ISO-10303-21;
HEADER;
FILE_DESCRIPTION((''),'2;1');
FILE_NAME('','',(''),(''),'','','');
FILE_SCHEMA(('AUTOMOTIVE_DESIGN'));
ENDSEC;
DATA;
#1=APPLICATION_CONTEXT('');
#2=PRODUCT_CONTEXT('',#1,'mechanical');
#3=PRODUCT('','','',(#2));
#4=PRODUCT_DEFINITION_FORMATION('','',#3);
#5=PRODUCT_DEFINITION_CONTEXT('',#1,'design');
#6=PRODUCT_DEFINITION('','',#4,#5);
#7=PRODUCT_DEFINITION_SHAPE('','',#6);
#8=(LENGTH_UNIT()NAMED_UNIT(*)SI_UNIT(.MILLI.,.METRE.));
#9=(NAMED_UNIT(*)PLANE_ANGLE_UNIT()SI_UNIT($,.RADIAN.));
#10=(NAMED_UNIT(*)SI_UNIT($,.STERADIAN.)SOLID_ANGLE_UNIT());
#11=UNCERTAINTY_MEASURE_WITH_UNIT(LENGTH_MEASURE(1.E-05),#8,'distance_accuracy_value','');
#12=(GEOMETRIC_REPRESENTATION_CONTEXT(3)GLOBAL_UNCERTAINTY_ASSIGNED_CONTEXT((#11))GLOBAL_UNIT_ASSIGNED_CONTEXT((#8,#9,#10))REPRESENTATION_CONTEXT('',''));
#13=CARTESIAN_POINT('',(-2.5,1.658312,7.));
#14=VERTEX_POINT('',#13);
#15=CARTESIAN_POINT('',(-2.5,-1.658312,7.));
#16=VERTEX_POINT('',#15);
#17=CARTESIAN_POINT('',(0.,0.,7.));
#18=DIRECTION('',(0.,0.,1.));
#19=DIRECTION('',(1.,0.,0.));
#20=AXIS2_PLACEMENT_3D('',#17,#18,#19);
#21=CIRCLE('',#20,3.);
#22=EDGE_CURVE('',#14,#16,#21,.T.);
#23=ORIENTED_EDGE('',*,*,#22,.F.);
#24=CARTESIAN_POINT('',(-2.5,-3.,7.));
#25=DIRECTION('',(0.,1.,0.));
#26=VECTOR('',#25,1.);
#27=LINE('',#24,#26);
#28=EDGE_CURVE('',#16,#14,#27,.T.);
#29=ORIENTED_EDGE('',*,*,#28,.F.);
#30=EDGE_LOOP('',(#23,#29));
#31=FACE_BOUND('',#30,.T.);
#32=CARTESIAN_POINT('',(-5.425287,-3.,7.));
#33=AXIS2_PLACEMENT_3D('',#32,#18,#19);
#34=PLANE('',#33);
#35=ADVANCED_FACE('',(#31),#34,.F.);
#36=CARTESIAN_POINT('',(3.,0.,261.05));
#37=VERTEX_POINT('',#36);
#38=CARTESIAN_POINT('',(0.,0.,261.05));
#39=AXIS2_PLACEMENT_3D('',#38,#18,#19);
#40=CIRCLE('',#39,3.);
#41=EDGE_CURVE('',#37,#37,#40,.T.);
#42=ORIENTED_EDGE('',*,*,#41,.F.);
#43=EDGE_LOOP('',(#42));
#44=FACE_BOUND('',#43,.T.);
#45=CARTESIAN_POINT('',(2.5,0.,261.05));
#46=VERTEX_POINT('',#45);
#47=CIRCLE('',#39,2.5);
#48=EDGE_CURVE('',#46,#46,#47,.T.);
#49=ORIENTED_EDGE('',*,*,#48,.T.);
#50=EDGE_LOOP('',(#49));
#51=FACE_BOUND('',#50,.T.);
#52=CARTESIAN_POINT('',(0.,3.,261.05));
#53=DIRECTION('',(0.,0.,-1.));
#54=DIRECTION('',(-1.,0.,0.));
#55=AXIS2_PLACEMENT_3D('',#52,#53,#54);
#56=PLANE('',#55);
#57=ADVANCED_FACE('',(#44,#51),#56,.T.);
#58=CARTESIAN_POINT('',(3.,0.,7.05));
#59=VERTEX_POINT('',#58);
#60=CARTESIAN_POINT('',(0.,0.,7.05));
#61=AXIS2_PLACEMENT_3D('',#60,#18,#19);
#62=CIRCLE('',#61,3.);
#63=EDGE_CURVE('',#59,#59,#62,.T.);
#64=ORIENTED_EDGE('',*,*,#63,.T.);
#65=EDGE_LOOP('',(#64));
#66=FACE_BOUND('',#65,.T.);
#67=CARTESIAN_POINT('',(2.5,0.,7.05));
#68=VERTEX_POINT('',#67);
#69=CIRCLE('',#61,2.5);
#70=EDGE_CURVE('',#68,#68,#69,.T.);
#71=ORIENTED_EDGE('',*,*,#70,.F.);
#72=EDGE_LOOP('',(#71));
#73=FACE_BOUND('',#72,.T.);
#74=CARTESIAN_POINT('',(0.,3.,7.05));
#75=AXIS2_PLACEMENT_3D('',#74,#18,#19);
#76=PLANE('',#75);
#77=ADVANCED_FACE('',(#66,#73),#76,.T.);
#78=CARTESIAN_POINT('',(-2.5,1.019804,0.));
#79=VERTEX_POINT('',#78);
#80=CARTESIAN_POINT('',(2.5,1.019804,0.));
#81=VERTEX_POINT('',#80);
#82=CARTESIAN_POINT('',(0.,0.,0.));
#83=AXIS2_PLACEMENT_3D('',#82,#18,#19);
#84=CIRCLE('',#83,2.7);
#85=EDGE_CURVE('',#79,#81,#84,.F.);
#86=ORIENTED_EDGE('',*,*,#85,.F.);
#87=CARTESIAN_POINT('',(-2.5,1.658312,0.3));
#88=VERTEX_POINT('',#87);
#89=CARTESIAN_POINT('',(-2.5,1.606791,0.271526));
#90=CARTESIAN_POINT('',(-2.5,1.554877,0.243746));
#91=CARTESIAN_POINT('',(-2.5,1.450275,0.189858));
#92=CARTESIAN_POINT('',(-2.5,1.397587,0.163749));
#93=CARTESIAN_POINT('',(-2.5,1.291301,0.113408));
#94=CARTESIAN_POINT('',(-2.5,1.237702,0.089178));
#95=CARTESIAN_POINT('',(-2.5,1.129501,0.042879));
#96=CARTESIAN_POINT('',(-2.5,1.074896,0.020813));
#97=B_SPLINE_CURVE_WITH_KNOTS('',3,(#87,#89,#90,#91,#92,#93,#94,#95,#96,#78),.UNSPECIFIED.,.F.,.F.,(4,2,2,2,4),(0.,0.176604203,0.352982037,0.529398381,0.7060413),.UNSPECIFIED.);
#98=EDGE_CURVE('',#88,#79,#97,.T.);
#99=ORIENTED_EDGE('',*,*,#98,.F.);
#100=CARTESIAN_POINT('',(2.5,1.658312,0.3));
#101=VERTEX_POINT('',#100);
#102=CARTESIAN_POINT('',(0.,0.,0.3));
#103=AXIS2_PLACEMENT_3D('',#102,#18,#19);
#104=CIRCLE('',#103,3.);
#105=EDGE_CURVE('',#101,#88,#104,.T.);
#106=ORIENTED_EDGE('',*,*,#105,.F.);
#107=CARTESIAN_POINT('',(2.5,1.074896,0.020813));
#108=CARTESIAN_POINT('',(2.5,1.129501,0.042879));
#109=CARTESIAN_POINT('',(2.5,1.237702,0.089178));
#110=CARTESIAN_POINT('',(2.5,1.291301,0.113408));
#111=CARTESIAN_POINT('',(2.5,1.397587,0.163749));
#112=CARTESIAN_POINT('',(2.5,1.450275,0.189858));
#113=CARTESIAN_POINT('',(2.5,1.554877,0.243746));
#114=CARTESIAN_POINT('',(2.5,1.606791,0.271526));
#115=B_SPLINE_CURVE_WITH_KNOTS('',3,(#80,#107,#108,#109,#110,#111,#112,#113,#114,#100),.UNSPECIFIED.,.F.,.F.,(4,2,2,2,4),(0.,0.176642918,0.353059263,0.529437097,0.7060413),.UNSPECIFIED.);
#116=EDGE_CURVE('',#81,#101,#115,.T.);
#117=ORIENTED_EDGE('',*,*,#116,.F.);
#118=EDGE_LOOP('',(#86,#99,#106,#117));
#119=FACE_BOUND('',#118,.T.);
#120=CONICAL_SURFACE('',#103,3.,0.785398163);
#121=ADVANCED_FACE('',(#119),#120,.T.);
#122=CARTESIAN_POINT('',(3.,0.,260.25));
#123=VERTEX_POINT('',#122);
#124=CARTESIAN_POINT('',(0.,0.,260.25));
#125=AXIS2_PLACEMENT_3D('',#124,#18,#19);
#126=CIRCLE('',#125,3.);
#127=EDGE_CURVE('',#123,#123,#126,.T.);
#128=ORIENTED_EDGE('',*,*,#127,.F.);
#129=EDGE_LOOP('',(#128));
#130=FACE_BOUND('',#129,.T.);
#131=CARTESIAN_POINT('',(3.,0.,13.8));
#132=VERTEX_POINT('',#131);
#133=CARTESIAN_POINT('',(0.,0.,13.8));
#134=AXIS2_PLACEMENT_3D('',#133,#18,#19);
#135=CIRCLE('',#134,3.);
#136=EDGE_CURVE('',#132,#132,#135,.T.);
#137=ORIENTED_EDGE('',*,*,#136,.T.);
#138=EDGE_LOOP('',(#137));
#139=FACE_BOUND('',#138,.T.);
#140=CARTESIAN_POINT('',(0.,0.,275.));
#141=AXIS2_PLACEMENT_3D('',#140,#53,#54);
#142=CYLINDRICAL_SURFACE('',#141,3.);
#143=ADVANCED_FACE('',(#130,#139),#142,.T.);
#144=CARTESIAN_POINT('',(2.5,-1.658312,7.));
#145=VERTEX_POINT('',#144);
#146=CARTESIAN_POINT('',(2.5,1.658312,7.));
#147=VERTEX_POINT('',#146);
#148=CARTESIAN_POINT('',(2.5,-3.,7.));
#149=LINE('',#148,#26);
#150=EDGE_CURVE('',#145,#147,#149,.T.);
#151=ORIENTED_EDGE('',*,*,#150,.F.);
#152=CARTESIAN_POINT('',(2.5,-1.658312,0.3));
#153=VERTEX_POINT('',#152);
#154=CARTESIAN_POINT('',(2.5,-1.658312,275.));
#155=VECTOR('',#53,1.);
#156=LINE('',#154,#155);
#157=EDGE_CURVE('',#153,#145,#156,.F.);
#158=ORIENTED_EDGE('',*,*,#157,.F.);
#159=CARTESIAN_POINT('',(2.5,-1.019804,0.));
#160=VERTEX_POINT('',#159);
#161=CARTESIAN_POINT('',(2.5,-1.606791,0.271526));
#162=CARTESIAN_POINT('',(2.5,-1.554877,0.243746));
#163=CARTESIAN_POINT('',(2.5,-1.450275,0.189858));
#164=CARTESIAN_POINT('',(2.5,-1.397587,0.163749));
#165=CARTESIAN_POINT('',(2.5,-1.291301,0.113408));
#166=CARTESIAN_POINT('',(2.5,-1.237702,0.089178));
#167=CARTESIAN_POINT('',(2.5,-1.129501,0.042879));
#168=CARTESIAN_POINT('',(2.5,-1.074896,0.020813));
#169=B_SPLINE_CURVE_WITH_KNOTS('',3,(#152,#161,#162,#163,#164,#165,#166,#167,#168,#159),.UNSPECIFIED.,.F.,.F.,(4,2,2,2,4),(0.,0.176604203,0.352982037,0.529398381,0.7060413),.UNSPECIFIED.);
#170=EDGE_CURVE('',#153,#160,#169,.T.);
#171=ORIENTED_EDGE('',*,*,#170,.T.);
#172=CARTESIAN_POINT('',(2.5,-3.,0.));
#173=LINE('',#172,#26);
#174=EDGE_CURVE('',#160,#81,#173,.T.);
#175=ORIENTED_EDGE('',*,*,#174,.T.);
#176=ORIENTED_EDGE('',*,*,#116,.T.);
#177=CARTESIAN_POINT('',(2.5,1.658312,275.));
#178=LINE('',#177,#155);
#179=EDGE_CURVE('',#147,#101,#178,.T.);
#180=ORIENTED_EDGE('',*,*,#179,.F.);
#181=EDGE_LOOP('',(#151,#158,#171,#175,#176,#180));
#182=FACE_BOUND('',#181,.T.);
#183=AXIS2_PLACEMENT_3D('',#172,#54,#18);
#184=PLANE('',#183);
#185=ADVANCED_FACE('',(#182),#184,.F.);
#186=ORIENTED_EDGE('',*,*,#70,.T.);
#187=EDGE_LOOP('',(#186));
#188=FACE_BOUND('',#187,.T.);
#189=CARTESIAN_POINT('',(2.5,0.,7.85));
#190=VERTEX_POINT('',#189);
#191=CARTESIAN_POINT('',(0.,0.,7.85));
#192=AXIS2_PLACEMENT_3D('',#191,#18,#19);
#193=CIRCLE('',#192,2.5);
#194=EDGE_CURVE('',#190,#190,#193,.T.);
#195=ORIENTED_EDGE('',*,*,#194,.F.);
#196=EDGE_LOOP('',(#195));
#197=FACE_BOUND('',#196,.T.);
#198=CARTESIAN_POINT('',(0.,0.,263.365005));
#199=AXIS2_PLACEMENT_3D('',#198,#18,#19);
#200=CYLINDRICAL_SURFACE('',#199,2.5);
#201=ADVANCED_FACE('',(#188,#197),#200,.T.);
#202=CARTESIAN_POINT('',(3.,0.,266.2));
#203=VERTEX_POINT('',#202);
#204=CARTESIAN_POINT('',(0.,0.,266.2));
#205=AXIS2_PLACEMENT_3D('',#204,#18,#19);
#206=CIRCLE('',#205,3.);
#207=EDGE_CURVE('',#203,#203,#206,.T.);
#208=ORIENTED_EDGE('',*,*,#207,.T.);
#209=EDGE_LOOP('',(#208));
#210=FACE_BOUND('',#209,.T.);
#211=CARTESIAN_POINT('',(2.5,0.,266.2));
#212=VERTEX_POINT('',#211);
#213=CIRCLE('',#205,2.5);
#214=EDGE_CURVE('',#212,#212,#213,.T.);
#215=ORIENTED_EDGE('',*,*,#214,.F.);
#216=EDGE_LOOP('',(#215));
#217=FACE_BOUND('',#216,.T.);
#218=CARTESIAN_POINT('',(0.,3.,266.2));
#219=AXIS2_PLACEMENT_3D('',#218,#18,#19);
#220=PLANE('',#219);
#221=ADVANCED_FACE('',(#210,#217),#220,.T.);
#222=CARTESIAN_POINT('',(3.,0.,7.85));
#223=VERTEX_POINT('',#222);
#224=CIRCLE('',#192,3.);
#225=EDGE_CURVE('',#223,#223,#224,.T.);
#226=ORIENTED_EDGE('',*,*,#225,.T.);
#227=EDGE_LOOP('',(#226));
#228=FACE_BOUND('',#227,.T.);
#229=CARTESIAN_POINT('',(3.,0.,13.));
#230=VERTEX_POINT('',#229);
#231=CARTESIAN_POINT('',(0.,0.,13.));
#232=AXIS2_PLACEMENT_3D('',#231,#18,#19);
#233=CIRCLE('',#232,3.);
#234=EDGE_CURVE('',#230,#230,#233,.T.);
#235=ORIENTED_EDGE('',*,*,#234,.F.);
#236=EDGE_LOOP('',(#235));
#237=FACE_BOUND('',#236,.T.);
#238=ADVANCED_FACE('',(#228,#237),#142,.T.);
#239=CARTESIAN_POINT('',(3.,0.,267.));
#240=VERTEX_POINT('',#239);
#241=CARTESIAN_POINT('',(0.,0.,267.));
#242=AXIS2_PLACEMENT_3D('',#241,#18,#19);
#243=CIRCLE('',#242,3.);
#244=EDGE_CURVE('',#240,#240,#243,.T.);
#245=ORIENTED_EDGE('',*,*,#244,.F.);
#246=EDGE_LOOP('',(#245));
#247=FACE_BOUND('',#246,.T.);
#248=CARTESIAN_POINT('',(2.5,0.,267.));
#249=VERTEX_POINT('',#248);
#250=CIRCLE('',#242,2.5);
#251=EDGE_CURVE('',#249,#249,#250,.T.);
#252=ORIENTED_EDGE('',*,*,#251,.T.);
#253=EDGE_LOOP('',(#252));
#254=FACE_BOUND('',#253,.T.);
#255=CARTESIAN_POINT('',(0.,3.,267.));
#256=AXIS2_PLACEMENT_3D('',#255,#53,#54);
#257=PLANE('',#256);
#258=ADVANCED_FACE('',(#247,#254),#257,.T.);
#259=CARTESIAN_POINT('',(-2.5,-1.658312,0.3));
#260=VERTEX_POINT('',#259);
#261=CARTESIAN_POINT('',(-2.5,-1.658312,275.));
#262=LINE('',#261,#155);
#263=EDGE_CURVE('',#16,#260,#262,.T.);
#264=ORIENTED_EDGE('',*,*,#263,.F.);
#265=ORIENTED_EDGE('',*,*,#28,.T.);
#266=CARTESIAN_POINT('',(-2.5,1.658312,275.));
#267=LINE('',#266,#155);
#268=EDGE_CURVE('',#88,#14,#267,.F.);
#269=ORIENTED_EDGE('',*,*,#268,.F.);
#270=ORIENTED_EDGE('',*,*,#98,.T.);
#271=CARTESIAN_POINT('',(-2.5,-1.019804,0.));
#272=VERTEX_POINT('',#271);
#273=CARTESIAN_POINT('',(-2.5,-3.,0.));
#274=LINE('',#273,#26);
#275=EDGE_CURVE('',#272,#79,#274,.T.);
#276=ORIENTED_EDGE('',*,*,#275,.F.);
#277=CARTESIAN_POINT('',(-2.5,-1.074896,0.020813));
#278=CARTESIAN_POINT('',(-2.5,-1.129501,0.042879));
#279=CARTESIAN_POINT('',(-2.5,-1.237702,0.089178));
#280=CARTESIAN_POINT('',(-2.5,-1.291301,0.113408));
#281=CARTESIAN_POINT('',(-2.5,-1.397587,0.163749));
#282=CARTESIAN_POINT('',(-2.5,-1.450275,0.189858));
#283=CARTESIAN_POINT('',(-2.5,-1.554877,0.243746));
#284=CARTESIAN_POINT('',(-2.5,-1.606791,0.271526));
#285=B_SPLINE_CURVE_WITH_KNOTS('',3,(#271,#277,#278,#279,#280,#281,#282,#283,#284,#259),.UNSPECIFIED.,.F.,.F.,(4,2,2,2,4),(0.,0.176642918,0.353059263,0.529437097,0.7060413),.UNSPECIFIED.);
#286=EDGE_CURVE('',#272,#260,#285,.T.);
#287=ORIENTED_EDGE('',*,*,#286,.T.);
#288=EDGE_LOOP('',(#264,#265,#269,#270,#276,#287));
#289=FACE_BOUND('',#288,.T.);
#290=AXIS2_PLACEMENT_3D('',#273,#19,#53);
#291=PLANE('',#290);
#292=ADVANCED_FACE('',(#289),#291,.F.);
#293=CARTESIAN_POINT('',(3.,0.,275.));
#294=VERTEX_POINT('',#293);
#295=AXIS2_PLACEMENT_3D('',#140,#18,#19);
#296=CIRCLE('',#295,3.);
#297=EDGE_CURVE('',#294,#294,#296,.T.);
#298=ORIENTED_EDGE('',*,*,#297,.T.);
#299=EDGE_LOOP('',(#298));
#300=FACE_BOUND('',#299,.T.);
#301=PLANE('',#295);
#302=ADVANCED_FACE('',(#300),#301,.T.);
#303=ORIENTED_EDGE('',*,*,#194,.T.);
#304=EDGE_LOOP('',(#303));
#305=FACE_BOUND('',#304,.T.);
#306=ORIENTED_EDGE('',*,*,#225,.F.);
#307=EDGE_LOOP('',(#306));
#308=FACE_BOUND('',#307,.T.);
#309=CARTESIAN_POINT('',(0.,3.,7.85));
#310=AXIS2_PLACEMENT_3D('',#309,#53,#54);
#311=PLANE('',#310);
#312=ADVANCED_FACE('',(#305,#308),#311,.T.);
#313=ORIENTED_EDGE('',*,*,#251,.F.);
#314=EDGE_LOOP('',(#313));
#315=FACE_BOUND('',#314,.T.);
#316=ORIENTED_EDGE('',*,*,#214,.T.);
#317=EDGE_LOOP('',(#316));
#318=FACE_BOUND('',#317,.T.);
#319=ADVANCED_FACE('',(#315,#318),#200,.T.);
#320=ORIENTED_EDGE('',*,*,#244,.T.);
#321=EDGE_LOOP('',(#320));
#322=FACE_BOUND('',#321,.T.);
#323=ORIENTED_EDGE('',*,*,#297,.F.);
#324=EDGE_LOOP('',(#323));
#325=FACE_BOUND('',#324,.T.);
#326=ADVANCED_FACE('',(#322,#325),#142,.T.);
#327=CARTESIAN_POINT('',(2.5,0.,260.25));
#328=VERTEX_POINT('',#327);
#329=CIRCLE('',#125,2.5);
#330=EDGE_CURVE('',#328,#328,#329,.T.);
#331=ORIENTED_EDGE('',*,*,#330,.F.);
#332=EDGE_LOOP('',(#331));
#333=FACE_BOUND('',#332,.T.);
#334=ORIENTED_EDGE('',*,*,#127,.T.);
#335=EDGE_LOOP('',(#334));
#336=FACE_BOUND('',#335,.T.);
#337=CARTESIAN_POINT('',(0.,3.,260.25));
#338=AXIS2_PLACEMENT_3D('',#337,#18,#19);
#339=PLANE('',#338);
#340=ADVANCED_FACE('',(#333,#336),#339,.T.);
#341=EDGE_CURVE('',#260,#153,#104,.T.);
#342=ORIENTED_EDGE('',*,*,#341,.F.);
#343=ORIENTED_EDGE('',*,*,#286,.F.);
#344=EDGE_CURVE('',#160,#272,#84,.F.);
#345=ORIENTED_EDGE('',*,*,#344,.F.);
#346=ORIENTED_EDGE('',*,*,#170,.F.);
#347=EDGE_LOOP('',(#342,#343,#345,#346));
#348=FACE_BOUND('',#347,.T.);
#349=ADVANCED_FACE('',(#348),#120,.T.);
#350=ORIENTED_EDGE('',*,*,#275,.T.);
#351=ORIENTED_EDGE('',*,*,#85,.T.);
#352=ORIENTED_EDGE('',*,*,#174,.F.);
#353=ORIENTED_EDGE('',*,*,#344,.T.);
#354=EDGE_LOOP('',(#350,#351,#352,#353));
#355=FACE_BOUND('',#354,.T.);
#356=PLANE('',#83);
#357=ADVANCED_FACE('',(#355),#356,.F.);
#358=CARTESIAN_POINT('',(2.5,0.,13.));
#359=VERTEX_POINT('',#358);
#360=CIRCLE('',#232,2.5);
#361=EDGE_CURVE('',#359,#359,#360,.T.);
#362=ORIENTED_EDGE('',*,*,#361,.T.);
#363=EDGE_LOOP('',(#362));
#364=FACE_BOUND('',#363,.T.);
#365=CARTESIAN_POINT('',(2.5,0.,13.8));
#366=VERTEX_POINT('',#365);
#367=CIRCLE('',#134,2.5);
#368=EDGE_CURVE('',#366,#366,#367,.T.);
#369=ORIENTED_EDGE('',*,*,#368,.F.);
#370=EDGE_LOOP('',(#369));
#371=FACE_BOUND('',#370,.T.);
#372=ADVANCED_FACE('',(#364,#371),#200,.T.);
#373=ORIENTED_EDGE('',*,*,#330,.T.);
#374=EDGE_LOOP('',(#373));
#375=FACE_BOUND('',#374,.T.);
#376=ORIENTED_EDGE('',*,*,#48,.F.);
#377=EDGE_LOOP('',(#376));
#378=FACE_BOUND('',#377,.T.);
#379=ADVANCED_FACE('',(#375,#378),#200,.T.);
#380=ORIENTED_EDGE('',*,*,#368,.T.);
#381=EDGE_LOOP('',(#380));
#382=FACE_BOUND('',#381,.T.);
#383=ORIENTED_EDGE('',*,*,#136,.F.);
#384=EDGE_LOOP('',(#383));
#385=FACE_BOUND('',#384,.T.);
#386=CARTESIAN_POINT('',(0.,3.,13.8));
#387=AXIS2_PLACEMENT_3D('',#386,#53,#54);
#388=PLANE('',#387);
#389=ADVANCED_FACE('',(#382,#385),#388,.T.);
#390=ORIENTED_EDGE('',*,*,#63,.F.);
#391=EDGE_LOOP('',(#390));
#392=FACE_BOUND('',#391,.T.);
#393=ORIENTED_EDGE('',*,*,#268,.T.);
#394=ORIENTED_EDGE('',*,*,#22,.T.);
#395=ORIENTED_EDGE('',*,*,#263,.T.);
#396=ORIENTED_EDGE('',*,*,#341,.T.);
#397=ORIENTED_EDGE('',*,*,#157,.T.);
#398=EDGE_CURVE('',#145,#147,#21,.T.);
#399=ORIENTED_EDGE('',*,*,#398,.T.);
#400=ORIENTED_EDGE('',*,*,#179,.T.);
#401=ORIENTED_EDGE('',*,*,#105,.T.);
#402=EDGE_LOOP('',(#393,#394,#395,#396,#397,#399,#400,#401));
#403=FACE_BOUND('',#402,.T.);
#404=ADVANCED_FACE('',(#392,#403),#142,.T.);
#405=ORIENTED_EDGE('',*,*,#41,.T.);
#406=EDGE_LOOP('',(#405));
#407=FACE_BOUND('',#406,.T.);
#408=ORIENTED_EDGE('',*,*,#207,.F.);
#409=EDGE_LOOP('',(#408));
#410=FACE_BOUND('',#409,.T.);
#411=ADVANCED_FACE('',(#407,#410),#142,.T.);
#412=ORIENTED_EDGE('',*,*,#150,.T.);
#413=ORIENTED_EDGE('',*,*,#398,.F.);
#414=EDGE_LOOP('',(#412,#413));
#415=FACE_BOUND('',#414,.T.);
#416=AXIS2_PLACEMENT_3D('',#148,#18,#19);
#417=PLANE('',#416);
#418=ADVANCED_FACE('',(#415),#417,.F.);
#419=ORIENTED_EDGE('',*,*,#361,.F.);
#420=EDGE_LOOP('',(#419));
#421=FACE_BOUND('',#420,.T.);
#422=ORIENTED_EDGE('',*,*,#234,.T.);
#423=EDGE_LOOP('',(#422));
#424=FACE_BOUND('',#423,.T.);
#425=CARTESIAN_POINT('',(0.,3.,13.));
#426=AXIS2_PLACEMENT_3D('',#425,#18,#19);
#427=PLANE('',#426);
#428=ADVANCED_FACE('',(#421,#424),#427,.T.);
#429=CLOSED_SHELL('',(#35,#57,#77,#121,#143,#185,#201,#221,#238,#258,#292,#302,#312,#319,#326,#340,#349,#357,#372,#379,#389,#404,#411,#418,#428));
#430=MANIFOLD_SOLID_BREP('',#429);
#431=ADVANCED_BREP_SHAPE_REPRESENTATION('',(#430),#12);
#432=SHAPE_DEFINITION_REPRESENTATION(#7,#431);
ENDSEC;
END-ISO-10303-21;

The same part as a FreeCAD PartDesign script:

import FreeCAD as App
import Part
import Sketcher
Q = App.Units.Quantity


def edges_at(feature, points):
    """Names of the edges that pass closest to the given points."""
    edges = feature.Shape.Edges
    near = lambda p: min(range(len(edges)), key=lambda i: edges[i].distToShape(Part.Vertex(*p))[0])
    return sorted({f"Edge{near(p) + 1}" for p in points})


def add_polygon(sketch, points):
    """Adds a closed chain of lines whose ends are joined by coincident constraints."""
    first, n = sketch.GeometryCount, len(points)
    for a, b in zip(points, points[1:] + points[:1]):
        sketch.addGeometry(Part.LineSegment(App.Vector(*a, 0), App.Vector(*b, 0)), False)
    for i in range(n):
        sketch.addConstraint(Sketcher.Constraint("Coincident", first + i, 2, first + (i + 1) % n, 1))

doc = App.newDocument("Part")
body = doc.addObject("PartDesign::Body", "Body")

sketch1 = body.newObject("Sketcher::SketchObject", "Sketch")
sketch1.AttachmentSupport = (doc.getObject("XY_Plane"), [""])
sketch1.MapMode = "FlatFace"
sketch1.addGeometry(Part.Circle(App.Vector(0, 0, 0), App.Vector(0, 0, 1), 3), False)
sketch1.addConstraint([
    Sketcher.Constraint("Coincident", 0, 3, -1, 1),
    Sketcher.Constraint("Diameter", 0, Q("6 mm")),
])
pad1 = body.newObject("PartDesign::Pad", "Pad")
pad1.Profile = sketch1
pad1.Length = 275

sketch2 = body.newObject("Sketcher::SketchObject", "Sketch001")
sketch2.AttachmentSupport = (doc.getObject("YZ_Plane"), [""])
sketch2.MapMode = "FlatFace"
add_polygon(sketch2, [(3, 267), (2.5, 267), (2.5, 266.2), (3, 266.2)])
add_polygon(sketch2, [(3, 261.1), (2.5, 261.1), (2.5, 260.2), (3, 260.2)])
add_polygon(sketch2, [(3, 13.8), (2.5, 13.8), (2.5, 13), (3, 13)])
add_polygon(sketch2, [(3, 7.8), (2.5, 7.8), (2.5, 7), (3, 7)])
sketch2.addConstraint([
    Sketcher.Constraint("Horizontal", 0),
    Sketcher.Constraint("Vertical", 1),
    Sketcher.Constraint("Horizontal", 2),
    Sketcher.Constraint("Vertical", 3),
    Sketcher.Constraint("Horizontal", 4),
    Sketcher.Constraint("Vertical", 5),
    Sketcher.Constraint("Horizontal", 6),
    Sketcher.Constraint("Vertical", 7),
    Sketcher.Constraint("Horizontal", 8),
    Sketcher.Constraint("Vertical", 9),
    Sketcher.Constraint("Horizontal", 10),
    Sketcher.Constraint("Vertical", 11),
    Sketcher.Constraint("Horizontal", 12),
    Sketcher.Constraint("Vertical", 13),
    Sketcher.Constraint("Horizontal", 14),
    Sketcher.Constraint("Vertical", 15),
    Sketcher.Constraint("Vertical", 1, 2, 4, 2),
    Sketcher.Constraint("Vertical", 3, 2, 6, 2),
    Sketcher.Constraint("Vertical", 5, 2, 8, 2),
    Sketcher.Constraint("Vertical", 7, 2, 10, 2),
    Sketcher.Constraint("Vertical", 9, 2, 12, 2),
    Sketcher.Constraint("Vertical", 11, 2, 14, 2),
    Sketcher.Constraint("Equal", 3, 5),
    Sketcher.Constraint("Equal", 7, 9),
    Sketcher.Constraint("Equal", 11, 13),
    Sketcher.Constraint("DistanceX", 0, 2, 0, 1, Q("0.5 mm")),
    Sketcher.Constraint("DistanceY", 1, 2, 1, 1, Q("0.8 mm")),
    Sketcher.Constraint("DistanceY", -1, 1, 0, 2, Q("267 mm")),
    Sketcher.Constraint("DistanceX", -1, 1, 2, 2, Q("3 mm")),
    Sketcher.Constraint("DistanceY", -1, 1, 9, 2, Q("13 mm")),
    Sketcher.Constraint("DistanceY", 12, 2, 5, 2, Q("252.4 mm")),
    Sketcher.Constraint("DistanceY", -1, 1, 4, 2, Q("261.05 mm")),
])
groove = body.newObject("PartDesign::Groove", "Groove")
groove.Profile = sketch2
groove.ReferenceAxis = (sketch2, ["V_Axis"])
groove.Angle = 360

sketch3 = body.newObject("Sketcher::SketchObject", "Sketch002")
sketch3.AttachmentSupport = (doc.getObject("XZ_Plane"), [""])
sketch3.MapMode = "FlatFace"
add_polygon(sketch3, [(2.5, 0), (2.5, 7), (6, 7), (6, 0)])
add_polygon(sketch3, [(-5.4, 0), (-5.4, 7), (-2.5, 7), (-2.5, 0)])
sketch3.addConstraint([
    Sketcher.Constraint("Vertical", 0),
    Sketcher.Constraint("Horizontal", 1),
    Sketcher.Constraint("Vertical", 2),
    Sketcher.Constraint("Horizontal", 3),
    Sketcher.Constraint("Vertical", 4),
    Sketcher.Constraint("Horizontal", 5),
    Sketcher.Constraint("Vertical", 6),
    Sketcher.Constraint("Horizontal", 7),
    Sketcher.Constraint("Symmetric", 3, 2, 6, 2, -1, 1),
    Sketcher.Constraint("PointOnObject", 2, 2, -1),
    Sketcher.Constraint("Horizontal", 1, 2, 4, 2),
    Sketcher.Constraint("DistanceY", 0, 1, 0, 2, Q("7 mm")),
    Sketcher.Constraint("DistanceX", 5, 2, 0, 2, Q("5 mm")),
    Sketcher.Constraint("DistanceX", 1, 1, 1, 2, Q("3.470061 mm")),
    Sketcher.Constraint("DistanceX", 5, 1, 5, 2, Q("2.925287 mm")),
])
pocket1 = body.newObject("PartDesign::Pocket", "Pocket")
pocket1.Profile = sketch3
pocket1.Type = "ThroughAll"
pocket1.Midplane = True
doc.recompute()

chamfer = body.newObject("PartDesign::Chamfer", "Chamfer")
chamfer.Base = (pocket1, edges_at(pocket1, [(0, 3, 0), (0, -3, 0)]))
chamfer.Size = 0.3

doc.recompute()
